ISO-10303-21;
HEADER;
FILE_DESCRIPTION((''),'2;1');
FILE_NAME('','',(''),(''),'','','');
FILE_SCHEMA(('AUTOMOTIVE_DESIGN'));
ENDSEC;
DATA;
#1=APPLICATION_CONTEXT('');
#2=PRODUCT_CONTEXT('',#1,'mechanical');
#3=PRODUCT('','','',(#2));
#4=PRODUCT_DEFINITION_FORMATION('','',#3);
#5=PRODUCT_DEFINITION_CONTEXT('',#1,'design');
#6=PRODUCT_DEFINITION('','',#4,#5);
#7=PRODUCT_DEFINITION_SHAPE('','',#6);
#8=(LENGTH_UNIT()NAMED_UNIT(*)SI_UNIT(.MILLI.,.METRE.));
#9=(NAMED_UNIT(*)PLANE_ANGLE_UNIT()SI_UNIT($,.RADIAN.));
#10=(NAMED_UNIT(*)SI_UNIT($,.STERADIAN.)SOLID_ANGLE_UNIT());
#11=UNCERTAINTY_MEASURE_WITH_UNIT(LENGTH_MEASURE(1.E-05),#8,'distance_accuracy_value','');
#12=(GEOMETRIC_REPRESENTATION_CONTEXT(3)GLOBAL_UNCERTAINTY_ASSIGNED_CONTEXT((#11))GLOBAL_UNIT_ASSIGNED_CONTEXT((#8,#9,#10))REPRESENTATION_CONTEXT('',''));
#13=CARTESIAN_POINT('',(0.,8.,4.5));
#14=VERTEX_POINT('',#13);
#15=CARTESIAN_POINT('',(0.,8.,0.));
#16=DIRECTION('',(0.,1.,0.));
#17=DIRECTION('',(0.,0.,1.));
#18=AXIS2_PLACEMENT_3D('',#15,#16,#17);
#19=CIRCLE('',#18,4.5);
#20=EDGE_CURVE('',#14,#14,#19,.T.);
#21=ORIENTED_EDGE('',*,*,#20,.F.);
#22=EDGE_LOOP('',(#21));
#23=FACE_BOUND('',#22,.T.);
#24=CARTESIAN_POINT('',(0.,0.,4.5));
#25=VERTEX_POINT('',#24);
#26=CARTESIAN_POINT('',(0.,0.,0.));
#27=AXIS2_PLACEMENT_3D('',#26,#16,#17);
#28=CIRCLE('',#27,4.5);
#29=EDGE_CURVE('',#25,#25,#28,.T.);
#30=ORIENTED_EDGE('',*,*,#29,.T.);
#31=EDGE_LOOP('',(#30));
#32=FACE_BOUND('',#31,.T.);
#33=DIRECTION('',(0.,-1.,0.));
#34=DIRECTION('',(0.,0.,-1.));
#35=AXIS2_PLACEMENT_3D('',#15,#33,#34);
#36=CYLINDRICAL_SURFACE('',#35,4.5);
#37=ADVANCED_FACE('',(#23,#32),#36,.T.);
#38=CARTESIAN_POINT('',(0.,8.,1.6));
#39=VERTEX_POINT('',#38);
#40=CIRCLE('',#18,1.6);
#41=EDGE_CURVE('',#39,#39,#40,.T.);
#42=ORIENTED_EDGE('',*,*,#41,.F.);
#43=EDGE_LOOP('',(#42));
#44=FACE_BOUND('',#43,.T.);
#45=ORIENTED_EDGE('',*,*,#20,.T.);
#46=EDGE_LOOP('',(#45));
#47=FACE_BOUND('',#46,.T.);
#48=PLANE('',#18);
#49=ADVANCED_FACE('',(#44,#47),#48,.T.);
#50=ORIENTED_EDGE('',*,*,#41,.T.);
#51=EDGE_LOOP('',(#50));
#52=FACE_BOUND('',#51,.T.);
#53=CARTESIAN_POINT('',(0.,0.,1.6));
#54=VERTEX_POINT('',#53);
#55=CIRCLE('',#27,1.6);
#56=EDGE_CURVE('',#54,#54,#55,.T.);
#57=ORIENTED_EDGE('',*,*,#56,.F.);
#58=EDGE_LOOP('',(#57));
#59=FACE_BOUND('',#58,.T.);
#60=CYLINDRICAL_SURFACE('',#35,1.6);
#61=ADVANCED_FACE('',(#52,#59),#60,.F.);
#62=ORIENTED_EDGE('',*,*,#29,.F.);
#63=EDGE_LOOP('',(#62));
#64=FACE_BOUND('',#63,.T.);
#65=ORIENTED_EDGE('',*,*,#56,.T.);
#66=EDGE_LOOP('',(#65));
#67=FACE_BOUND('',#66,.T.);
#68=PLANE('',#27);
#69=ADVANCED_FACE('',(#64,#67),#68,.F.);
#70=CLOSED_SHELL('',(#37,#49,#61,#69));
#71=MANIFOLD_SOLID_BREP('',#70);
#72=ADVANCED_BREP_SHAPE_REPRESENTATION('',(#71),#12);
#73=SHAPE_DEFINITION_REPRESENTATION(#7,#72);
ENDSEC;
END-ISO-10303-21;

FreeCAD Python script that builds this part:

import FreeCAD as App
import Part
import Sketcher

doc = App.newDocument("Part")
params = doc.addObject("Spreadsheet::Sheet", "Params")
for row, (alias, value) in enumerate([
    ("sketch1_diameter", "9 mm"),
    ("sketch1_diameter2", "3.2 mm"),
    ("pad1_length", "8 mm"),
], start=1):
    params.set(f"A{row}", alias)
    params.set(f"B{row}", "=" + value)
    params.setAlias(f"B{row}", alias)

body = doc.addObject("PartDesign::Body", "Body")

# Sketch on XZ plane
sketch1 = doc.addObject("Sketcher::SketchObject", "Sketch")
body.addObject(sketch1)
sketch1.AttachmentSupport = (doc.XZ_Plane, [""])
sketch1.MapMode = "FlatFace"
sketch1.addGeometry([
    Part.Circle(App.Vector(0, 0, 0), App.Vector(0, 0, 1), 4.5),
    Part.Circle(App.Vector(0, 0, 0), App.Vector(0, 0, 1), 1.6),
], False)
sketch1.addConstraint([
    Sketcher.Constraint("Coincident", 0, 3, -1, 1),
    Sketcher.Constraint("Coincident", 1, 3, -1, 1),
    Sketcher.Constraint("Diameter", 0, 9.0),
    Sketcher.Constraint("Diameter", 1, 3.2),
])
sketch1.setExpression("Constraints[2]", "Params.sketch1_diameter")
sketch1.setExpression("Constraints[3]", "Params.sketch1_diameter2")
pad1 = doc.addObject("PartDesign::Pad", "Pad")
body.addObject(pad1)
pad1.Profile = sketch1
pad1.setExpression("Length", "Params.pad1_length")
pad1.Reversed = True

doc.recompute()
